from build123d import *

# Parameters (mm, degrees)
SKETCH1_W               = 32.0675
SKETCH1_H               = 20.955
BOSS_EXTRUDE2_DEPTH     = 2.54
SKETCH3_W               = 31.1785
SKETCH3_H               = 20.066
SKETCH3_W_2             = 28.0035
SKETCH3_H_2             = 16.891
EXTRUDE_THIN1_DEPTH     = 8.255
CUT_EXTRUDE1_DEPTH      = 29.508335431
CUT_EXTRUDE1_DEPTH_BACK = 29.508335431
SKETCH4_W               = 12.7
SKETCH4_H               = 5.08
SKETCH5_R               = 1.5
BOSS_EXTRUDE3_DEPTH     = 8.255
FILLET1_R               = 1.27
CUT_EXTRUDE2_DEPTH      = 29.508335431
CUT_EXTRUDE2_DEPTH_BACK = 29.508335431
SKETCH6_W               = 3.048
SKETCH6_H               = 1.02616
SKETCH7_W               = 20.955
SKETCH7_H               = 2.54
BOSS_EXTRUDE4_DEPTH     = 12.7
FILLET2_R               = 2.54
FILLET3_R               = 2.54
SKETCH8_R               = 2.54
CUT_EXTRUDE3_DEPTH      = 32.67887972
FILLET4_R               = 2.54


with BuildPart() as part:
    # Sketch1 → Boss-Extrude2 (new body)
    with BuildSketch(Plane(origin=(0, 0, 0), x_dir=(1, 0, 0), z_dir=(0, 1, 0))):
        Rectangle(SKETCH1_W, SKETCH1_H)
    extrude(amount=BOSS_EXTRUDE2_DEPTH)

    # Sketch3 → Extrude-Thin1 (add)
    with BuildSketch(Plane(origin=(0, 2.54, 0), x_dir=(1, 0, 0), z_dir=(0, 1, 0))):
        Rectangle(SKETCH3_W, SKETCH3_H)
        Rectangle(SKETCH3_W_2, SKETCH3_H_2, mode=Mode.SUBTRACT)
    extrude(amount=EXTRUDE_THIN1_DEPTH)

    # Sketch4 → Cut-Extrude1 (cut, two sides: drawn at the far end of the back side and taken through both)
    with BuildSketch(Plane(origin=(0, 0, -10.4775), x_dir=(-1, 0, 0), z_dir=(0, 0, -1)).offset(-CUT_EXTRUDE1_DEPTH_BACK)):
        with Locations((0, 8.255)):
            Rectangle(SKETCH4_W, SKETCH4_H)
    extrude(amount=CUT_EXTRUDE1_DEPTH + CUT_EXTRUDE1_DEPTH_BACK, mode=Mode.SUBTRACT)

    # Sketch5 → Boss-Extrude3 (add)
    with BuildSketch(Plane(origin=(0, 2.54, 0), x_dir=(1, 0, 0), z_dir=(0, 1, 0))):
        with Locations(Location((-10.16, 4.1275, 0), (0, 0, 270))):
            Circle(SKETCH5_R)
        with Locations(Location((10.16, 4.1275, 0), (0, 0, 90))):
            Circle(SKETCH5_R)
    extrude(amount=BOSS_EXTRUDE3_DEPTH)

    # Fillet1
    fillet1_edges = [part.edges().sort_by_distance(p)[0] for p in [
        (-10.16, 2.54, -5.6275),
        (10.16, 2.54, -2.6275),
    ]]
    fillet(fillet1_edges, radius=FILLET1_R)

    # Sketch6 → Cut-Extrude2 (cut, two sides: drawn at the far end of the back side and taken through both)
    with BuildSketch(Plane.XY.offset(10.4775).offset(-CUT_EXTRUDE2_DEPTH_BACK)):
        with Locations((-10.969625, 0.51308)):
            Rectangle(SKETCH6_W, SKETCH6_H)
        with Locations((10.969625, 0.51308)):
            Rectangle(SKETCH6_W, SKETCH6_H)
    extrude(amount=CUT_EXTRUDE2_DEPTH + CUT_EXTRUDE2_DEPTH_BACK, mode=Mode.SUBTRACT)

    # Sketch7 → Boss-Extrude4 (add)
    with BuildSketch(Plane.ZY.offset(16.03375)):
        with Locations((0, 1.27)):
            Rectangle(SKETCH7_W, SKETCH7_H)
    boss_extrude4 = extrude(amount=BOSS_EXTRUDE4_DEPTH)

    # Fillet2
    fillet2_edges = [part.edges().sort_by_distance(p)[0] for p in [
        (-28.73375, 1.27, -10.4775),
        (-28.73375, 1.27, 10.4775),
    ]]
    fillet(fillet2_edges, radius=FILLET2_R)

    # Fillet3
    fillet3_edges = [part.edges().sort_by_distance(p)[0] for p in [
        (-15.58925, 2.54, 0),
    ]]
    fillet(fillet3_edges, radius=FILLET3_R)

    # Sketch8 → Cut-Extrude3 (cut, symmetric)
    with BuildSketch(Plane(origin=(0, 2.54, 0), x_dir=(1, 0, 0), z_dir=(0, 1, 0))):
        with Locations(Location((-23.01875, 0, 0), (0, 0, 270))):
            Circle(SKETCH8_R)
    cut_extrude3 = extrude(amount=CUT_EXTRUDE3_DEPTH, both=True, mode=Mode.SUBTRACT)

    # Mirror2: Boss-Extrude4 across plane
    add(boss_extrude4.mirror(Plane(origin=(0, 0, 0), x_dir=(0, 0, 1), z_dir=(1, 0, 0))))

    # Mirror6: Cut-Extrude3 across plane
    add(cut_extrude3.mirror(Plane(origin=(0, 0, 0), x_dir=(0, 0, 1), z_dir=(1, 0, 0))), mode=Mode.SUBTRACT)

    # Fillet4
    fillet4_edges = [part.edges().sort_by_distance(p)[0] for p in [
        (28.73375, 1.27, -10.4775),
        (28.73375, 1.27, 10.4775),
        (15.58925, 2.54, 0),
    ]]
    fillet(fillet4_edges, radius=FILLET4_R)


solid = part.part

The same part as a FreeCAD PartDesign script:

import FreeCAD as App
import Part
import Sketcher
Q = App.Units.Quantity


def edges_at(feature, points):
    """Names of the edges that pass closest to the given points."""
    edges = feature.Shape.Edges
    near = lambda p: min(range(len(edges)), key=lambda i: edges[i].distToShape(Part.Vertex(*p))[0])
    return sorted({f"Edge{near(p) + 1}" for p in points})

doc = App.newDocument("Part")
body = doc.addObject("PartDesign::Body", "Body")

sketch1 = doc.addObject("Sketcher::SketchObject", "Sketch")
body.addObject(sketch1)
sketch1.AttachmentSupport = (doc.XZ_Plane, [""])
sketch1.MapMode = "FlatFace"
sketch1.addGeometry([
    Part.LineSegment(App.Vector(-16, -10, 0), App.Vector(-16, 10, 0)),
    Part.LineSegment(App.Vector(-16, 10, 0), App.Vector(16, 10, 0)),
    Part.LineSegment(App.Vector(16, 10, 0), App.Vector(16, -10, 0)),
    Part.LineSegment(App.Vector(16, -10, 0), App.Vector(-16, -10, 0)),
], False)
sketch1.addConstraint([
    Sketcher.Constraint("Coincident", 0, 2, 1, 1),
    Sketcher.Constraint("Coincident", 1, 2, 2, 1),
    Sketcher.Constraint("Coincident", 2, 2, 3, 1),
    Sketcher.Constraint("Coincident", 3, 2, 0, 1),
    Sketcher.Constraint("Vertical", 0),
    Sketcher.Constraint("Horizontal", 1),
    Sketcher.Constraint("Vertical", 2),
    Sketcher.Constraint("Horizontal", 3),
    Sketcher.Constraint("Symmetric", 0, 2, 2, 2, -1, 1),
    Sketcher.Constraint("DistanceY", 0, 1, 0, 2, Q("0.825 in")),
    Sketcher.Constraint("DistanceX", 1, 1, 1, 2, Q("1.2625 in")),
])
pad1 = doc.addObject("PartDesign::Pad", "Pad")
body.addObject(pad1)
pad1.Profile = sketch1
pad1.Length = Q("0.1 in")
pad1.Reversed = True

sketch2 = doc.addObject("Sketcher::SketchObject", "Sketch001")
body.addObject(sketch2)
sketch2.AttachmentSupport = (doc.XZ_Plane, [""])
sketch2.MapMode = "FlatFace"
sketch2.AttachmentOffset = App.Placement(App.Vector(0, 0, -0.1 * 25.4), App.Rotation())
sketch2.addGeometry([
    Part.LineSegment(App.Vector(-16, -10, 0), App.Vector(-16, 10, 0)),
    Part.LineSegment(App.Vector(-16, 10, 0), App.Vector(16, 10, 0)),
    Part.LineSegment(App.Vector(16, 10, 0), App.Vector(16, -10, 0)),
    Part.LineSegment(App.Vector(16, -10, 0), App.Vector(-16, -10, 0)),
    Part.LineSegment(App.Vector(14, 8, 0), App.Vector(-14, 8, 0)),
    Part.LineSegment(App.Vector(-14, 8, 0), App.Vector(-14, -8, 0)),
    Part.LineSegment(App.Vector(-14, -8, 0), App.Vector(14, -8, 0)),
    Part.LineSegment(App.Vector(14, -8, 0), App.Vector(14, 8, 0)),
], False)
sketch2.addConstraint([
    Sketcher.Constraint("Coincident", 0, 2, 1, 1),
    Sketcher.Constraint("Coincident", 1, 2, 2, 1),
    Sketcher.Constraint("Coincident", 2, 2, 3, 1),
    Sketcher.Constraint("Coincident", 3, 2, 0, 1),
    Sketcher.Constraint("Coincident", 4, 2, 5, 1),
    Sketcher.Constraint("Coincident", 5, 2, 6, 1),
    Sketcher.Constraint("Coincident", 6, 2, 7, 1),
    Sketcher.Constraint("Coincident", 7, 2, 4, 1),
    Sketcher.Constraint("Vertical", 0),
    Sketcher.Constraint("Horizontal", 1),
    Sketcher.Constraint("Vertical", 2),
    Sketcher.Constraint("Horizontal", 3),
    Sketcher.Constraint("Horizontal", 4),
    Sketcher.Constraint("Vertical", 5),
    Sketcher.Constraint("Horizontal", 6),
    Sketcher.Constraint("Vertical", 7),
    Sketcher.Constraint("Symmetric", 0, 2, 2, 2, -1, 1),
    Sketcher.Constraint("Symmetric", 4, 2, 6, 2, -1, 1),
    Sketcher.Constraint("DistanceY", 0, 1, 0, 2, Q("0.79 in")),
    Sketcher.Constraint("DistanceY", 5, 2, 5, 1, Q("0.665 in")),
    Sketcher.Constraint("DistanceX", 1, 1, 1, 2, Q("1.2275 in")),
    Sketcher.Constraint("DistanceX", 4, 2, 4, 1, Q("1.1025 in")),
])
pad2 = doc.addObject("PartDesign::Pad", "Pad001")
body.addObject(pad2)
pad2.Profile = sketch2
pad2.Length = Q("0.325 in")
pad2.Reversed = True

sketch3 = doc.addObject("Sketcher::SketchObject", "Sketch002")
body.addObject(sketch3)
sketch3.AttachmentSupport = (doc.XY_Plane, [""])
sketch3.MapMode = "FlatFace"
sketch3.AttachmentOffset = App.Placement(App.Vector(0, 0, -0.4125 * 25.4), App.Rotation())
sketch3.addGeometry([
    Part.LineSegment(App.Vector(6, 11, 0), App.Vector(6, 6, 0)),
    Part.LineSegment(App.Vector(6, 6, 0), App.Vector(-6, 6, 0)),
    Part.LineSegment(App.Vector(-6, 6, 0), App.Vector(-6, 11, 0)),
    Part.LineSegment(App.Vector(-6, 11, 0), App.Vector(6, 11, 0)),
], False)
sketch3.addConstraint([
    Sketcher.Constraint("Coincident", 0, 2, 1, 1),
    Sketcher.Constraint("Coincident", 1, 2, 2, 1),
    Sketcher.Constraint("Coincident", 2, 2, 3, 1),
    Sketcher.Constraint("Coincident", 3, 2, 0, 1),
    Sketcher.Constraint("Vertical", 0),
    Sketcher.Constraint("Horizontal", 1),
    Sketcher.Constraint("Vertical", 2),
    Sketcher.Constraint("Horizontal", 3),
    Sketcher.Constraint("DistanceX", 1, 2, 1, 1, Q("0.5 in")),
    Sketcher.Constraint("DistanceY", 0, 2, 0, 1, Q("0.2 in")),
    Sketcher.Constraint("DistanceX", -1, 1, 0, 2, Q("0.25 in")),
    Sketcher.Constraint("DistanceY", -1, 1, 0, 2, Q("0.225 in")),
])
pocket1 = doc.addObject("PartDesign::Pocket", "Pocket")
body.addObject(pocket1)
pocket1.Profile = sketch3
pocket1.Type = "ThroughAll"
pocket1.Midplane = True

sketch4 = doc.addObject("Sketcher::SketchObject", "Sketch003")
body.addObject(sketch4)
sketch4.AttachmentSupport = (doc.XZ_Plane, [""])
sketch4.MapMode = "FlatFace"
sketch4.AttachmentOffset = App.Placement(App.Vector(0, 0, -0.1 * 25.4), App.Rotation())
sketch4.addGeometry([
    Part.Circle(App.Vector(-10.2, -4.1, 0), App.Vector(0, 0, 1), 1.5),
    Part.Circle(App.Vector(10.2, -4.1, 0), App.Vector(0, 0, 1), 1.5),
], False)
sketch4.addConstraint([
    Sketcher.Constraint("Equal", 0, 1),
    Sketcher.Constraint("Symmetric", 0, 3, 1, 3, -2),
    Sketcher.Constraint("DistanceX", 0, 3, -1, 1, Q("0.4 in")),
    Sketcher.Constraint("Diameter", 0, Q("3 mm")),
    Sketcher.Constraint("DistanceY", 0, 3, -1, 1, Q("0.1625 in")),
])
pad3 = doc.addObject("PartDesign::Pad", "Pad002")
body.addObject(pad3)
pad3.Profile = sketch4
pad3.Length = Q("0.325 in")
pad3.Reversed = True
doc.recompute()

fillet = doc.addObject("PartDesign::Fillet", "Fillet")
body.addObject(fillet)
fillet.Base = (pad3, edges_at(pad3, [(-10.16, 2.54, -5.628), (10.16, 2.54, -2.627)]))
fillet.Radius = Q("0.05 in")

sketch5 = doc.addObject("Sketcher::SketchObject", "Sketch004")
body.addObject(sketch5)
sketch5.AttachmentSupport = (doc.XY_Plane, [""])
sketch5.MapMode = "FlatFace"
sketch5.AttachmentOffset = App.Placement(App.Vector(0, 0, 0.4125 * 25.4), App.Rotation())
sketch5.addGeometry([
    Part.LineSegment(App.Vector(-12.5, 1, 0), App.Vector(-12.5, 0, 0)),
    Part.LineSegment(App.Vector(-12.5, 0, 0), App.Vector(-9.4, 0, 0)),
    Part.LineSegment(App.Vector(-9.4, 0, 0), App.Vector(-9.4, 1, 0)),
    Part.LineSegment(App.Vector(-9.4, 1, 0), App.Vector(-12.5, 1, 0)),
    Part.LineSegment(App.Vector(9.4, 1, 0), App.Vector(9.4, 0, 0)),
    Part.LineSegment(App.Vector(9.4, 0, 0), App.Vector(12.5, 0, 0)),
    Part.LineSegment(App.Vector(12.5, 0, 0), App.Vector(12.5, 1, 0)),
    Part.LineSegment(App.Vector(12.5, 1, 0), App.Vector(9.4, 1, 0)),
], False)
sketch5.addConstraint([
    Sketcher.Constraint("Coincident", 0, 2, 1, 1),
    Sketcher.Constraint("Coincident", 1, 2, 2, 1),
    Sketcher.Constraint("Coincident", 2, 2, 3, 1),
    Sketcher.Constraint("Coincident", 3, 2, 0, 1),
    Sketcher.Constraint("Coincident", 4, 2, 5, 1),
    Sketcher.Constraint("Coincident", 5, 2, 6, 1),
    Sketcher.Constraint("Coincident", 6, 2, 7, 1),
    Sketcher.Constraint("Coincident", 7, 2, 4, 1),
    Sketcher.Constraint("Vertical", 0),
    Sketcher.Constraint("Horizontal", 1),
    Sketcher.Constraint("Vertical", 2),
    Sketcher.Constraint("Horizontal", 3),
    Sketcher.Constraint("Vertical", 4),
    Sketcher.Constraint("Horizontal", 5),
    Sketcher.Constraint("Vertical", 6),
    Sketcher.Constraint("Horizontal", 7),
    Sketcher.Constraint("Symmetric", 1, 2, 4, 2, -1, 1),
    Sketcher.Constraint("Symmetric", 0, 2, 5, 2, -2),
    Sketcher.Constraint("Horizontal", 3, 2, 6, 2),
    Sketcher.Constraint("DistanceX", 1, 1, 1, 2, Q("0.12 in")),
    Sketcher.Constraint("DistanceY", 0, 2, 0, 1, Q("0.0404 in")),
    Sketcher.Constraint("DistanceX", 1, 2, 4, 2, Q("18.89125 mm")),
])
pocket2 = doc.addObject("PartDesign::Pocket", "Pocket001")
body.addObject(pocket2)
pocket2.Profile = sketch5
pocket2.Type = "ThroughAll"
pocket2.Midplane = True

sketch6 = doc.addObject("Sketcher::SketchObject", "Sketch005")
body.addObject(sketch6)
sketch6.AttachmentSupport = (doc.YZ_Plane, [""])
sketch6.MapMode = "FlatFace"
sketch6.AttachmentOffset = App.Placement(App.Vector(0, 0, -16.03375), App.Rotation())
sketch6.addGeometry([
    Part.LineSegment(App.Vector(2.5, -10.5, 0), App.Vector(0, -10.5, 0)),
    Part.LineSegment(App.Vector(0, -10.5, 0), App.Vector(0, 10.5, 0)),
    Part.LineSegment(App.Vector(0, 10.5, 0), App.Vector(2.5, 10.5, 0)),
    Part.LineSegment(App.Vector(2.5, 10.5, 0), App.Vector(2.5, -10.5, 0)),
], False)
sketch6.addConstraint([
    Sketcher.Constraint("Coincident", 0, 2, 1, 1),
    Sketcher.Constraint("Coincident", 1, 2, 2, 1),
    Sketcher.Constraint("Coincident", 2, 2, 3, 1),
    Sketcher.Constraint("Coincident", 3, 2, 0, 1),
    Sketcher.Constraint("Horizontal", 0),
    Sketcher.Constraint("Vertical", 1),
    Sketcher.Constraint("Horizontal", 2),
    Sketcher.Constraint("Vertical", 3),
    Sketcher.Constraint("Symmetric", 0, 2, 1, 2, -1, 1),
    Sketcher.Constraint("DistanceX", 0, 2, 0, 1, Q("0.1 in")),
    Sketcher.Constraint("DistanceY", 1, 1, 1, 2, Q("0.825 in")),
])
pad4 = doc.addObject("PartDesign::Pad", "Pad003")
body.addObject(pad4)
pad4.Profile = sketch6
pad4.Length = Q("0.5 in")
pad4.Reversed = True
doc.recompute()

fillet2 = doc.addObject("PartDesign::Fillet", "Fillet001")
body.addObject(fillet2)
fillet2.Base = (pad4, edges_at(pad4, [(-28.734, 1.27, -10.477), (-28.734, 1.27, 10.477)]))
fillet2.Radius = Q("0.1 in")
doc.recompute()

fillet3 = doc.addObject("PartDesign::Fillet", "Fillet002")
body.addObject(fillet3)
fillet3.Base = (fillet2, edges_at(fillet2, [(-15.589, 2.54, 0)]))
fillet3.Radius = Q("0.1 in")

sketch7 = doc.addObject("Sketcher::SketchObject", "Sketch006")
body.addObject(sketch7)
sketch7.AttachmentSupport = (doc.XZ_Plane, [""])
sketch7.MapMode = "FlatFace"
sketch7.AttachmentOffset = App.Placement(App.Vector(0, 0, -0.1 * 25.4), App.Rotation())
sketch7.addGeometry(Part.Circle(App.Vector(-23, 0, 0), App.Vector(0, 0, 1), 2.5), False)
sketch7.addConstraint([
    Sketcher.Constraint("PointOnObject", 0, 3, -1),
    Sketcher.Constraint("Diameter", 0, Q("0.2 in")),
    Sketcher.Constraint("DistanceX", 0, 3, -1, 1, Q("0.90625 in")),
])
pocket3 = doc.addObject("PartDesign::Pocket", "Pocket002")
body.addObject(pocket3)
pocket3.Profile = sketch7
pocket3.Length = 65.357759
pocket3.Midplane = True
doc.recompute()

mirrored = doc.addObject("PartDesign::Mirrored", "Mirrored")
body.addObject(mirrored)
mirrored.Originals = [pad4]
mirrored.MirrorPlane = (doc.YZ_Plane, [""])
body.Tip = mirrored
doc.recompute()

mirrored2 = doc.addObject("PartDesign::Mirrored", "Mirrored001")
body.addObject(mirrored2)
mirrored2.Originals = [pocket3]
mirrored2.MirrorPlane = (doc.YZ_Plane, [""])
body.Tip = mirrored2
doc.recompute()

fillet4 = doc.addObject("PartDesign::Fillet", "Fillet003")
body.addObject(fillet4)
fillet4.Base = (mirrored2, edges_at(mirrored2, [(28.734, 1.27, -10.477), (28.734, 1.27, 10.477), (15.589, 2.54, 0)]))
fillet4.Radius = Q("0.1 in")

doc.recompute()
